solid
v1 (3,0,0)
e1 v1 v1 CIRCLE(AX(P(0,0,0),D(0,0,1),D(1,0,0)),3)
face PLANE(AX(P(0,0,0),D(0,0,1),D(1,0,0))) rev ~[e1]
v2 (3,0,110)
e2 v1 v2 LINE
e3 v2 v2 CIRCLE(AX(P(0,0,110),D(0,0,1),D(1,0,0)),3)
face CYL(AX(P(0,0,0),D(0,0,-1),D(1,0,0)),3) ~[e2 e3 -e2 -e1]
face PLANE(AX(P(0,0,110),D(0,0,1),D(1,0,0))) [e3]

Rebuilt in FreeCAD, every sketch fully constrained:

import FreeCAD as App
import Part
import Sketcher
Q = App.Units.Quantity

doc = App.newDocument("Part")
body = doc.addObject("PartDesign::Body", "Body")

sketch1 = body.newObject("Sketcher::SketchObject", "Sketch")
sketch1.AttachmentSupport = (doc.getObject("XY_Plane"), [""])
sketch1.MapMode = "FlatFace"
sketch1.addGeometry(Part.Circle(App.Vector(0, 0, 0), App.Vector(0, 0, 1), 3), False)
sketch1.addConstraint([
    Sketcher.Constraint("Coincident", 0, 3, -1, 1),
    Sketcher.Constraint("Diameter", 0, Q("6 mm")),
])
pad1 = body.newObject("PartDesign::Pad", "Pad")
pad1.Profile = sketch1
pad1.Length = 110

doc.recompute()
